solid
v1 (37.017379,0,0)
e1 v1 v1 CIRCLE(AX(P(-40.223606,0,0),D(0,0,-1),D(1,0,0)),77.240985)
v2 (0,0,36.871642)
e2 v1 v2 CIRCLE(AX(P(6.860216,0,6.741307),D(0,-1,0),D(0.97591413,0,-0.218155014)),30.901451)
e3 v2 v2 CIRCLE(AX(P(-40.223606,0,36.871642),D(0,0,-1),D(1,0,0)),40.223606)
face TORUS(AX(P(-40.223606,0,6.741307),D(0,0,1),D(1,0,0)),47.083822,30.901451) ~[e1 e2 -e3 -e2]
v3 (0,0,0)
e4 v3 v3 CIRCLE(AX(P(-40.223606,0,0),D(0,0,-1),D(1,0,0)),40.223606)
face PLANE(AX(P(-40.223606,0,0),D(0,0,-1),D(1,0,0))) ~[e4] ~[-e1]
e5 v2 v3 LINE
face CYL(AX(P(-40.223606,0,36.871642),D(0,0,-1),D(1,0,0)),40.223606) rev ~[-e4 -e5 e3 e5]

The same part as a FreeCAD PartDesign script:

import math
import FreeCAD as App
import Part
import Sketcher

doc = App.newDocument("Part")
body = doc.addObject("PartDesign::Body", "Body")

# Sketch on XZ plane
sketch1 = doc.addObject("Sketcher::SketchObject", "Sketch")
body.addObject(sketch1)
sketch1.AttachmentSupport = (doc.XZ_Plane, [""])
sketch1.MapMode = "FlatFace"
sketch1.addGeometry([
    Part.ArcOfCircle(Part.Circle(App.Vector(6.860216, 6.741307, 0), App.Vector(0, 0, 1), 30.901451), math.radians(-12.600691), math.radians(102.826709)),
    Part.LineSegment(App.Vector(0, 36.871642, 0), App.Vector(0, 0, 0)),
    Part.LineSegment(App.Vector(0, 0, 0), App.Vector(37.017379, 0, 0)),
], False)
sketch1.addGeometry(Part.LineSegment(App.Vector(-40.223606, 36.871642, 0), App.Vector(-40.223606, 0, 0)), True)  # axis
sketch1.addConstraint([
    Sketcher.Constraint("Coincident", 0, 2, 1, 1),
    Sketcher.Constraint("Coincident", 1, 2, 2, 1),
    Sketcher.Constraint("Coincident", 2, 2, 0, 1),
    Sketcher.Constraint("Vertical", 1),
    Sketcher.Constraint("Horizontal", 2),
    Sketcher.Constraint("Vertical", 3),
    Sketcher.Constraint("Coincident", 1, 2, -1, 1),
    Sketcher.Constraint("PointOnObject", 3, 2, -1),
    Sketcher.Constraint("Horizontal", 0, 2, 3, 1),
    Sketcher.Constraint("Radius", 0, 30.901451),
    Sketcher.Constraint("DistanceX", 2, 1, 2, 2, 37.017379),
    Sketcher.Constraint("DistanceY", 1, 2, 1, 1, 36.871642),
    Sketcher.Constraint("DistanceX", 3, 1, -1, 1, 40.223606),
])
revolution = doc.addObject("PartDesign::Revolution", "Revolution")
body.addObject(revolution)
revolution.Profile = sketch1
revolution.ReferenceAxis = (sketch1, ["Axis0"])
revolution.Angle = 360

doc.recompute()
